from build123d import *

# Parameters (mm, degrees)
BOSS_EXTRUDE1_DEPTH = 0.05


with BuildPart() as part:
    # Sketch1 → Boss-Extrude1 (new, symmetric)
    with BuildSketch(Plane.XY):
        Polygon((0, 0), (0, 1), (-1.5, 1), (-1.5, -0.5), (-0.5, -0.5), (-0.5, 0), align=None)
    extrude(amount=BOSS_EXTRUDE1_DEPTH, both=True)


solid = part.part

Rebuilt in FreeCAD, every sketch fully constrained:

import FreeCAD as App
import Part
import Sketcher
Q = App.Units.Quantity


def add_polygon(sketch, points):
    """Adds a closed chain of lines whose ends are joined by coincident constraints."""
    first, n = sketch.GeometryCount, len(points)
    for a, b in zip(points, points[1:] + points[:1]):
        sketch.addGeometry(Part.LineSegment(App.Vector(*a, 0), App.Vector(*b, 0)), False)
    for i in range(n):
        sketch.addConstraint(Sketcher.Constraint("Coincident", first + i, 2, first + (i + 1) % n, 1))

doc = App.newDocument("Part")
body = doc.addObject("PartDesign::Body", "Body")

# Sketch on XY plane
sketch1 = body.newObject("Sketcher::SketchObject", "Sketch")
sketch1.AttachmentSupport = (doc.getObject("XY_Plane"), [""])
sketch1.MapMode = "FlatFace"
add_polygon(sketch1, [(0, 0), (0, 1), (-1.5, 1), (-1.5, -0.5), (-0.5, -0.5), (-0.5, 0)])  # lines 0-5
sketch1.addConstraint([
    Sketcher.Constraint("Vertical", 0),
    Sketcher.Constraint("Horizontal", 1),
    Sketcher.Constraint("Vertical", 2),
    Sketcher.Constraint("Horizontal", 3),
    Sketcher.Constraint("Vertical", 4),
    Sketcher.Constraint("Horizontal", 5),
    Sketcher.Constraint("Coincident", 5, 2, -1, 1),
    Sketcher.Constraint("Equal", 3, 0),
    Sketcher.Constraint("Equal", 1, 2),
    Sketcher.Constraint("DistanceX", 3, 1, 3, 2, Q("1 mm")),
    Sketcher.Constraint("DistanceX", 1, 2, 1, 1, Q("1.5 mm")),
])
pad1 = body.newObject("PartDesign::Pad", "Pad")
pad1.Profile = sketch1
pad1.Length = 0.1
pad1.Midplane = True

doc.recompute()
